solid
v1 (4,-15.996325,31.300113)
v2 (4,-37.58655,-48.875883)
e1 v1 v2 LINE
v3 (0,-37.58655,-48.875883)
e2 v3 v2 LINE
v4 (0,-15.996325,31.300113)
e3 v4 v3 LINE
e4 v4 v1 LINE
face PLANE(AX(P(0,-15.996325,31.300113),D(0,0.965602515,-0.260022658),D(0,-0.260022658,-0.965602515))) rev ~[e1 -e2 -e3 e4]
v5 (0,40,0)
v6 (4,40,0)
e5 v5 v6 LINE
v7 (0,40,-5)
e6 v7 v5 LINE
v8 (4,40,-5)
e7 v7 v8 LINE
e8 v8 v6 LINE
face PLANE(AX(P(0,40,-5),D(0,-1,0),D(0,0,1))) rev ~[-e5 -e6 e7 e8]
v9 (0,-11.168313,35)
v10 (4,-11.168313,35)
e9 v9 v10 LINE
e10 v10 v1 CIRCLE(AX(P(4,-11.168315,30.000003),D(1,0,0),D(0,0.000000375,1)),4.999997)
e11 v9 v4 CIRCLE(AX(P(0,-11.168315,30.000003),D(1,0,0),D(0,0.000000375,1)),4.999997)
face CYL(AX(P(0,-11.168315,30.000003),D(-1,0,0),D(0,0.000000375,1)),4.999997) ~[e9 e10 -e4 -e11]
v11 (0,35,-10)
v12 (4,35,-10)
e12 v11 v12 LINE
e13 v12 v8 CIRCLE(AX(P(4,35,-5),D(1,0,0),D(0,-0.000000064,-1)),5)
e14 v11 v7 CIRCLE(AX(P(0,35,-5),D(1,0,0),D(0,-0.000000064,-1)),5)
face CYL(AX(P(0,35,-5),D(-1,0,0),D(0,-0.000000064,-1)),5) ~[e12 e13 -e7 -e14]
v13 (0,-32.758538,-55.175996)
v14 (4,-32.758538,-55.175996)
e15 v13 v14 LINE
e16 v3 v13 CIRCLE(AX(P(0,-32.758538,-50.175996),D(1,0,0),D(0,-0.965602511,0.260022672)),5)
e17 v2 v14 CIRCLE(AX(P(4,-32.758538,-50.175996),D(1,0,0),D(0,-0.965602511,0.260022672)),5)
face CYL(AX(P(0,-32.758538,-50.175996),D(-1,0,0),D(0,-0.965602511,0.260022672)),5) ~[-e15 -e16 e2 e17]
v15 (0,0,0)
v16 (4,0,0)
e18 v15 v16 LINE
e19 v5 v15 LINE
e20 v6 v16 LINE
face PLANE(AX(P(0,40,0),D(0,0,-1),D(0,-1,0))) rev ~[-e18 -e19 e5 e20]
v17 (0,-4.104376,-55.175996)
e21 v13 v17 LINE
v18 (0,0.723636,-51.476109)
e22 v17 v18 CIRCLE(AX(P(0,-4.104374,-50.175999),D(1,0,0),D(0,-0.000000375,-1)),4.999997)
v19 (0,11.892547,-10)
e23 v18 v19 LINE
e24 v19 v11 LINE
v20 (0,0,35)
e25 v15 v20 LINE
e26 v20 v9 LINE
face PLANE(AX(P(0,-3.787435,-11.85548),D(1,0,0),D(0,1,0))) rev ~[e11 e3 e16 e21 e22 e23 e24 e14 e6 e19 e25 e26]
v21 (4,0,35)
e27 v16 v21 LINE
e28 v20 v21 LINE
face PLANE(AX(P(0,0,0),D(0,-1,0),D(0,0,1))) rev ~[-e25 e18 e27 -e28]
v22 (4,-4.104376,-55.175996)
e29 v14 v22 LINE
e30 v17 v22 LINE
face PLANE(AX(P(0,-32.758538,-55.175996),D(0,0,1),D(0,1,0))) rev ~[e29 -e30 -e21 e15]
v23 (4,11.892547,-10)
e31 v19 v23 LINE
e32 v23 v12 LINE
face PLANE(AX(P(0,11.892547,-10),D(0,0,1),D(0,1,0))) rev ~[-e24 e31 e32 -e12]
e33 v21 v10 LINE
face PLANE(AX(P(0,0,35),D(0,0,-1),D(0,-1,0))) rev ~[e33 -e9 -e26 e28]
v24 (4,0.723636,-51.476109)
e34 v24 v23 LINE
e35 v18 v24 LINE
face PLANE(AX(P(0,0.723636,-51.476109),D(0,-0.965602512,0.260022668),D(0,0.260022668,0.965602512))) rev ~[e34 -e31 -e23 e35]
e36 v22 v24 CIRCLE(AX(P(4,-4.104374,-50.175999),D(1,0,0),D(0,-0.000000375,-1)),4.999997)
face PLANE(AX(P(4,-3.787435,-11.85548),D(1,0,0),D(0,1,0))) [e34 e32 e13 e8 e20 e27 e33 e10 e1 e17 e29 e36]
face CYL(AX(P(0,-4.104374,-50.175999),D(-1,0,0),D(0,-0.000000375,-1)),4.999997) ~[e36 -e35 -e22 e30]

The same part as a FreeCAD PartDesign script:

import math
import FreeCAD as App
import Part
import Sketcher
from FreeCAD import Vector
Q = App.Units.Quantity

doc = App.newDocument("Part")
body = doc.addObject("PartDesign::Body", "Body")

# Sketch on YZ plane
sketch1 = doc.addObject("Sketcher::SketchObject", "Sketch")
body.addObject(sketch1)
sketch1.AttachmentSupport = (doc.YZ_Plane, [""])
sketch1.MapMode = "FlatFace"
sketch1.addGeometry([
    Part.LineSegment(Vector(40, 0, 0), Vector(0, 0, 0)),  # 0
    Part.LineSegment(Vector(0, 0, 0), Vector(0, 35, 0)),  # 1
    Part.LineSegment(Vector(0, 35, 0), Vector(-11.2, 35, 0)),  # 2
    Part.ArcOfCircle(Part.Circle(Vector(-11.2, 30, 0), Vector(0, 0, 1), 5), math.radians(90), math.radians(165)),  # 3
    Part.LineSegment(Vector(-16, 31.3, 0), Vector(-37.6, -48.9, 0)),  # 4
    Part.ArcOfCircle(Part.Circle(Vector(-32.8, -50.2, 0), Vector(0, 0, 1), 5), math.radians(165), math.radians(270)),  # 5
    Part.LineSegment(Vector(-32.8, -55.2, 0), Vector(-4.1, -55.2, 0)),  # 6
    Part.ArcOfCircle(Part.Circle(Vector(-4.1, -50.2, 0), Vector(0, 0, 1), 5), math.radians(-90), math.radians(-15)),  # 7
    Part.LineSegment(Vector(0.7, -51.5, 0), Vector(11.9, -10, 0)),  # 8
    Part.LineSegment(Vector(11.9, -10, 0), Vector(35, -10, 0)),  # 9
    Part.ArcOfCircle(Part.Circle(Vector(35, -5, 0), Vector(0, 0, 1), 5), math.radians(-90), math.radians(0)),  # 10
    Part.LineSegment(Vector(40, -5, 0), Vector(40, 0, 0)),  # 11
], False)
sketch1.addConstraint([
    Sketcher.Constraint("Coincident", 0, 2, 1, 1),
    Sketcher.Constraint("Coincident", 1, 2, 2, 1),
    Sketcher.Constraint("Tangent", 2, 2, 3, 1),
    Sketcher.Constraint("Tangent", 3, 2, 4, 1),
    Sketcher.Constraint("Tangent", 4, 2, 5, 1),
    Sketcher.Constraint("Tangent", 5, 2, 6, 1),
    Sketcher.Constraint("Tangent", 6, 2, 7, 1),
    Sketcher.Constraint("Tangent", 7, 2, 8, 1),
    Sketcher.Constraint("Coincident", 8, 2, 9, 1),
    Sketcher.Constraint("Tangent", 9, 2, 10, 1),
    Sketcher.Constraint("Tangent", 10, 2, 11, 1),
    Sketcher.Constraint("Coincident", 11, 2, 0, 1),
    Sketcher.Constraint("Horizontal", 0),
    Sketcher.Constraint("Vertical", 1),
    Sketcher.Constraint("Horizontal", 2),
    Sketcher.Constraint("Horizontal", 6),
    Sketcher.Constraint("Horizontal", 9),
    Sketcher.Constraint("Vertical", 11),
    Sketcher.Constraint("Coincident", 0, 2, -1, 1),
    Sketcher.Constraint("Equal", 3, 7),
    Sketcher.Constraint("Equal", 5, 10),
    Sketcher.Constraint("Parallel", 4, 8),
    Sketcher.Constraint("Radius", 5, Q("5 mm")),
    Sketcher.Constraint("DistanceX", 0, 2, 0, 1, Q("40 mm")),
    Sketcher.Constraint("DistanceY", 1, 1, 1, 2, Q("35 mm")),
    Sketcher.Constraint("DistanceY", 11, 1, 11, 2, Q("5 mm")),
    Sketcher.Constraint("DistanceY", 7, 3, -1, 1, Q("50.175999 mm")),
    Sketcher.Constraint("Radius", 3, Q("4.999997 mm")),
    Sketcher.Constraint("DistanceX", 6, 1, 6, 2, Q("28.654162 mm")),
    Sketcher.Constraint("Distance", 4, Q("83.032091 mm")),
    Sketcher.Constraint("DistanceX", 2, 2, 2, 1, Q("11.168313 mm")),
])
pad1 = doc.addObject("PartDesign::Pad", "Pad")
body.addObject(pad1)
pad1.Profile = sketch1
pad1.Length = 4

doc.recompute()
